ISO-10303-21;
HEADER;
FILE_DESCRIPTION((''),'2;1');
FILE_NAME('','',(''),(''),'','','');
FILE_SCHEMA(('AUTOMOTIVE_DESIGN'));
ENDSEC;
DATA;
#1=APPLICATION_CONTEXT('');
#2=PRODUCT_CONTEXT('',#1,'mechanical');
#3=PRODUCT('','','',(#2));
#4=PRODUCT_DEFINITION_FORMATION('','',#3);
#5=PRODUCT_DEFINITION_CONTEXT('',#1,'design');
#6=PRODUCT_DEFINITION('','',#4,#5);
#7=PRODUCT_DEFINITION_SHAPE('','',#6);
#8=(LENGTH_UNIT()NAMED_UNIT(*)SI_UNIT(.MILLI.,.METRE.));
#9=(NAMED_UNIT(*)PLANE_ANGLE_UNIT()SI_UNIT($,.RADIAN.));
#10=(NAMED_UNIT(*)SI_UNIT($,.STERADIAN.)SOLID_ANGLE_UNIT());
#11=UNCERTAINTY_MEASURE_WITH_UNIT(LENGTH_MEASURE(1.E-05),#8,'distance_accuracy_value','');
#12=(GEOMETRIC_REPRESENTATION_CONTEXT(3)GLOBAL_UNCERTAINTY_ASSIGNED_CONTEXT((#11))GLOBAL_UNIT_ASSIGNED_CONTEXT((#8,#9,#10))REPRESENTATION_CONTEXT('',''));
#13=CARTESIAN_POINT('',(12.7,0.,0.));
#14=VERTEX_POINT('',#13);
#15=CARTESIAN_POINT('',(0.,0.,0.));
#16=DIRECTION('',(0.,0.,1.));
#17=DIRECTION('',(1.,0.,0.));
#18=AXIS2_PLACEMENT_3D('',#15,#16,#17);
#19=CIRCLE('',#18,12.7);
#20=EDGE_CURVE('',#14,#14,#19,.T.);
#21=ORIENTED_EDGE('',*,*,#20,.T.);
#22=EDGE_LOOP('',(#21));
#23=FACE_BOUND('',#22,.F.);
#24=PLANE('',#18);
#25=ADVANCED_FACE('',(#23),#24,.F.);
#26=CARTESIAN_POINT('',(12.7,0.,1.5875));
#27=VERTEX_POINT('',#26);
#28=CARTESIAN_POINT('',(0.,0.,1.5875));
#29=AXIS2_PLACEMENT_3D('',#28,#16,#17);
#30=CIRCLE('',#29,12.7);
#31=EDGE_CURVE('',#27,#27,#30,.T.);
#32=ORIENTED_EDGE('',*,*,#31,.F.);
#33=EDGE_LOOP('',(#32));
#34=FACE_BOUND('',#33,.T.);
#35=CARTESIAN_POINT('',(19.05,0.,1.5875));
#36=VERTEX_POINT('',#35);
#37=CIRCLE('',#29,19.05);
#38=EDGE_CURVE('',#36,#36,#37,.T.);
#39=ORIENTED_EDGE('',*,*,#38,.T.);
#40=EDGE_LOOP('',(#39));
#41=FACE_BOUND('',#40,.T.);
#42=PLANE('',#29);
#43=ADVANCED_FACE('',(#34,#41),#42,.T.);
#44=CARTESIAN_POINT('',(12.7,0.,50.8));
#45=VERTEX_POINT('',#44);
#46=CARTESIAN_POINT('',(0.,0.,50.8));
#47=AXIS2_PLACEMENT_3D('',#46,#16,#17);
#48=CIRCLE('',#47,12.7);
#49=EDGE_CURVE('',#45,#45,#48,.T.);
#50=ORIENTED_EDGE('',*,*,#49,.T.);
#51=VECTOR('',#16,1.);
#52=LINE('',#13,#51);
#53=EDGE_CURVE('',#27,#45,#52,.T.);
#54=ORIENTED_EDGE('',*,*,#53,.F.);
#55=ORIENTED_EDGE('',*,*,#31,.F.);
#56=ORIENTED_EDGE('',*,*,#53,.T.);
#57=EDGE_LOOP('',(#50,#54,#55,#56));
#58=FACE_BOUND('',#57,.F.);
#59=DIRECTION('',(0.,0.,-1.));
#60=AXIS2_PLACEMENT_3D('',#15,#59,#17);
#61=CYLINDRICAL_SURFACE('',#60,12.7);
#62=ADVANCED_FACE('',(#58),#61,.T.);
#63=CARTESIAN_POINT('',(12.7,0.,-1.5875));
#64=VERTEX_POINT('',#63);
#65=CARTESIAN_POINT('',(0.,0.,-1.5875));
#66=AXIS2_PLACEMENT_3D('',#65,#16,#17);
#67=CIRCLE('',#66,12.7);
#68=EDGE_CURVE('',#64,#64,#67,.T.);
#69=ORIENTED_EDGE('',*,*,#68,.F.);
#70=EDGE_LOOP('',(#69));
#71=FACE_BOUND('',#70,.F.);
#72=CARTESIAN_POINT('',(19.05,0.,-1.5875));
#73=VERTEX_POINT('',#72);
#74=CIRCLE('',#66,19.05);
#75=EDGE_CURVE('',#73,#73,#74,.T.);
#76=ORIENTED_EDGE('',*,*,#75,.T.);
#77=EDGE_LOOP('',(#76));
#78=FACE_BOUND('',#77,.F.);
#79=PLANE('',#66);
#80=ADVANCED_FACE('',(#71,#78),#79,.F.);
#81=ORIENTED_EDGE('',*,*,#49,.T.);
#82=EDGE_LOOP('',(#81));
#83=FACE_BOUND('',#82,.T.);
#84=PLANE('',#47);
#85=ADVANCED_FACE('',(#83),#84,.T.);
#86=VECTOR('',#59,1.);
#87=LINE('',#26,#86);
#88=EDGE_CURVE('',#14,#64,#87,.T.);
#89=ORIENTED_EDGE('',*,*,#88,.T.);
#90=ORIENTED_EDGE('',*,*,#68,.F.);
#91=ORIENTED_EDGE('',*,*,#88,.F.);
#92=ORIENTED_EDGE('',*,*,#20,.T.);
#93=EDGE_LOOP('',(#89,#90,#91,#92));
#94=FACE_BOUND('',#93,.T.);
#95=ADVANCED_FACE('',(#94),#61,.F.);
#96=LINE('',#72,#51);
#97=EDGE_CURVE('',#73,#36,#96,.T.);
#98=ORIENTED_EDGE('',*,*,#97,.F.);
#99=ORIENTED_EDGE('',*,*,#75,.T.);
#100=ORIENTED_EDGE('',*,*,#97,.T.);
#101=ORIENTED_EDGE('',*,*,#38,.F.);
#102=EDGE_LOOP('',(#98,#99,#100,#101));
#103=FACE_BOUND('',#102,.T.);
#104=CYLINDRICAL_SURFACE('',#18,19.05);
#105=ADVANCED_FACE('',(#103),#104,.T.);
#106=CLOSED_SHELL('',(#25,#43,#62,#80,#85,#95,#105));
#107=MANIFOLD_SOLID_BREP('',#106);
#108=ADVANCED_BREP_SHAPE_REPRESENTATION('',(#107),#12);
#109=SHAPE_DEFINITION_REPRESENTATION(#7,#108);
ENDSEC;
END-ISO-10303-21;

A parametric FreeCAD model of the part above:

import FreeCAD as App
import Part
import Sketcher
from FreeCAD import Vector
Q = App.Units.Quantity

doc = App.newDocument("Part")
body = doc.addObject("PartDesign::Body", "Body")

# Sketch on XY plane
sketch1 = doc.addObject("Sketcher::SketchObject", "Sketch")
body.addObject(sketch1)
sketch1.AttachmentSupport = (doc.XY_Plane, [""])
sketch1.MapMode = "FlatFace"
sketch1.addGeometry(Part.Circle(Vector(0, 0, 0), Vector(0, 0, 1), 13), False)
sketch1.addConstraint(Sketcher.Constraint("Coincident", 0, 3, -1, 1))
sketch1.addConstraint(Sketcher.Constraint("Diameter", 0, Q("1 in")))
pad1 = doc.addObject("PartDesign::Pad", "Pad")
body.addObject(pad1)
pad1.Profile = sketch1
pad1.Length = Q("2 in")

# Sketch on XY plane
sketch2 = doc.addObject("Sketcher::SketchObject", "Sketch001")
body.addObject(sketch2)
sketch2.AttachmentSupport = (doc.XY_Plane, [""])
sketch2.MapMode = "FlatFace"
sketch2.addGeometry(Part.Circle(Vector(0, 0, 0), Vector(0, 0, 1), 19), False)
sketch2.addGeometry(Part.Circle(Vector(0, 0, 0), Vector(0, 0, 1), 13), False)
sketch2.addConstraint(Sketcher.Constraint("Coincident", 0, 3, -1, 1))
sketch2.addConstraint(Sketcher.Constraint("Coincident", 1, 3, -1, 1))
sketch2.addConstraint(Sketcher.Constraint("Diameter", 1, Q("1 in")))
sketch2.addConstraint(Sketcher.Constraint("Diameter", 0, Q("1.5 in")))
pad2 = doc.addObject("PartDesign::Pad", "Pad001")
body.addObject(pad2)
pad2.Profile = sketch2
pad2.Length = Q("0.125 in")
pad2.Midplane = True

doc.recompute()
